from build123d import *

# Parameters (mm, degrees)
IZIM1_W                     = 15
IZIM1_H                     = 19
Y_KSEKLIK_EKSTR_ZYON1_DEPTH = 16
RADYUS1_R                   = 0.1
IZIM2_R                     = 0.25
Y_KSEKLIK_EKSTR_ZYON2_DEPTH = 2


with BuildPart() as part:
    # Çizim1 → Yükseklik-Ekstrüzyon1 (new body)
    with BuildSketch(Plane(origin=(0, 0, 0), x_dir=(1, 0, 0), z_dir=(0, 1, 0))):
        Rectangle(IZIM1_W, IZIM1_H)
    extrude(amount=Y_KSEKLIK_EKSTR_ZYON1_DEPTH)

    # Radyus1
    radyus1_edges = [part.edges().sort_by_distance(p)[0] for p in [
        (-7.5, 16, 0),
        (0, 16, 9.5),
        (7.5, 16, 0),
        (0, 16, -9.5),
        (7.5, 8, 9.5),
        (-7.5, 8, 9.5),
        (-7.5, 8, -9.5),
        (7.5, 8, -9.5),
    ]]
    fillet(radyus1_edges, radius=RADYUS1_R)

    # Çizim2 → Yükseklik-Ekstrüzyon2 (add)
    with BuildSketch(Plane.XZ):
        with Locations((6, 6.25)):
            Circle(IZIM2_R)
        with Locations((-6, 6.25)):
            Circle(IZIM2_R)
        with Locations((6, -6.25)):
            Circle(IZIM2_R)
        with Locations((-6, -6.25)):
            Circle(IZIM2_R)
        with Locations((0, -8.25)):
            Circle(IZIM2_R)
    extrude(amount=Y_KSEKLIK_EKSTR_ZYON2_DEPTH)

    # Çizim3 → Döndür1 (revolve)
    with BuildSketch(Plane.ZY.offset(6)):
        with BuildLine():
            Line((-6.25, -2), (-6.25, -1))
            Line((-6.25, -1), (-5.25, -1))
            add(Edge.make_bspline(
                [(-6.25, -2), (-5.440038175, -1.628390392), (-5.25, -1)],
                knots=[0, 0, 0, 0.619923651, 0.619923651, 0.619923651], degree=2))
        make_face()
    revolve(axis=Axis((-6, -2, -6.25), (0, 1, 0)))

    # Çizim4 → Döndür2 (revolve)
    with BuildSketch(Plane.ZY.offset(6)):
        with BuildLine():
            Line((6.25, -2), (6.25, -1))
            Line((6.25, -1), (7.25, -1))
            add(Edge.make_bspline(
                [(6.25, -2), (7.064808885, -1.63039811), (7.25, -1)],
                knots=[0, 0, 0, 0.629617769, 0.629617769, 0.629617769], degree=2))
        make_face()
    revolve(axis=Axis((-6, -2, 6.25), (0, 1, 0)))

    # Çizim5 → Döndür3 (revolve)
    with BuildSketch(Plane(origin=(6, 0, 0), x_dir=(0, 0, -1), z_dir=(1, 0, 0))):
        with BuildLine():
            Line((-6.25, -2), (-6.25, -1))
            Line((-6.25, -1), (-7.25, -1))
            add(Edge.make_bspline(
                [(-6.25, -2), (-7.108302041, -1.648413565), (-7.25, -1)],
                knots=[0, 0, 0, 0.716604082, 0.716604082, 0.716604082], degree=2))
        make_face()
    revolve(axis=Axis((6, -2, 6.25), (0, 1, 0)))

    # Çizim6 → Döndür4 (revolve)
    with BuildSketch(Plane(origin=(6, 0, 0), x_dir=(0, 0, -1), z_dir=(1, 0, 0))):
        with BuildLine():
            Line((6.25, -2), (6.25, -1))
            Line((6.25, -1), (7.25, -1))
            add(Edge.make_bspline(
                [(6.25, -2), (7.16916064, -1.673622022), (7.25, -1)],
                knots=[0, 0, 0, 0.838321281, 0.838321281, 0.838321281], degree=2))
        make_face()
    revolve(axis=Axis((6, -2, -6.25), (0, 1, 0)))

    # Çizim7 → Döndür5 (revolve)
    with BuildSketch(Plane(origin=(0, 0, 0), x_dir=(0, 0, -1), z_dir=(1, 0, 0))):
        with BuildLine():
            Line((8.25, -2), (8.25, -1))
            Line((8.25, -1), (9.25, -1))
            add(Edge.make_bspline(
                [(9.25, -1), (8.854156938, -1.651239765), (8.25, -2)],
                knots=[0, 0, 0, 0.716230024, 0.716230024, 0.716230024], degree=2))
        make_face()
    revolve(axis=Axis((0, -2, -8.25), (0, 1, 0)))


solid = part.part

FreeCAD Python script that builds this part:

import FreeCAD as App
import Part
import Sketcher
from FreeCAD import Vector
Q = App.Units.Quantity


def edges_at(feature, points):
    """Names of the edges that pass closest to the given points."""
    edges = feature.Shape.Edges
    near = lambda p: min(range(len(edges)), key=lambda i: edges[i].distToShape(Part.Vertex(*p))[0])
    return sorted({f"Edge{near(p) + 1}" for p in points})

doc = App.newDocument("Part")
params = doc.addObject("Spreadsheet::Sheet", "Params")
for row, (alias, value) in enumerate([
    ("sketch1_width", "15 mm"),
    ("sketch1_height", "19 mm"),
    ("pad1_length", "16 mm"),
    ("fillet_radius", "0.1 mm"),
    ("sketch2_diameter", "0.5 mm"),
    ("pad2_length", "2 mm"),
    ("revolution_angle", "360 deg"),
    ("revolution2_angle", "360 deg"),
    ("revolution3_angle", "360 deg"),
    ("revolution4_angle", "360 deg"),
    ("revolution5_angle", "360 deg"),
], start=1):
    params.set(f"A{row}", alias)
    params.set(f"B{row}", "=" + value)
    params.setAlias(f"B{row}", alias)

body = doc.addObject("PartDesign::Body", "Body")

# Sketch on XZ plane
sketch1 = body.newObject("Sketcher::SketchObject", "Sketch")
sketch1.AttachmentSupport = (doc.getObject("XZ_Plane"), [""])
sketch1.MapMode = "FlatFace"
sketch1.addGeometry(Part.LineSegment(Vector(-7.5, -9.5, 0), Vector(-7.5, 9.5, 0)), False)
sketch1.addGeometry(Part.LineSegment(Vector(-7.5, 9.5, 0), Vector(7.5, 9.5, 0)), False)
sketch1.addGeometry(Part.LineSegment(Vector(7.5, 9.5, 0), Vector(7.5, -9.5, 0)), False)
sketch1.addGeometry(Part.LineSegment(Vector(7.5, -9.5, 0), Vector(-7.5, -9.5, 0)), False)
sketch1.addConstraint(Sketcher.Constraint("Coincident", 0, 2, 1, 1))
sketch1.addConstraint(Sketcher.Constraint("Coincident", 1, 2, 2, 1))
sketch1.addConstraint(Sketcher.Constraint("Coincident", 2, 2, 3, 1))
sketch1.addConstraint(Sketcher.Constraint("Coincident", 3, 2, 0, 1))
sketch1.addConstraint(Sketcher.Constraint("Vertical", 0))
sketch1.addConstraint(Sketcher.Constraint("Horizontal", 1))
sketch1.addConstraint(Sketcher.Constraint("Vertical", 2))
sketch1.addConstraint(Sketcher.Constraint("Horizontal", 3))
sketch1.addConstraint(Sketcher.Constraint("Symmetric", 0, 2, 2, 2, -1, 1))
sketch1.addConstraint(Sketcher.Constraint("DistanceX", 1, 1, 1, 2, Q("15 mm")))
sketch1.addConstraint(Sketcher.Constraint("DistanceY", 0, 1, 0, 2, Q("19 mm")))
sketch1.setExpression("Constraints[9]", "Params.sketch1_width")
sketch1.setExpression("Constraints[10]", "Params.sketch1_height")
pad1 = body.newObject("PartDesign::Pad", "Pad")
pad1.Profile = sketch1
pad1.setExpression("Length", "Params.pad1_length")
pad1.Reversed = True
doc.recompute()

fillet = body.newObject("PartDesign::Fillet", "Fillet")
fillet.Base = (pad1, edges_at(pad1, [
    (-7.5, 16, 0),
    (0, 16, 9.5),
    (7.5, 16, 0),
    (0, 16, -9.5),
    (7.5, 8, 9.5),
    (-7.5, 8, 9.5),
    (-7.5, 8, -9.5),
    (7.5, 8, -9.5),
]))
fillet.setExpression("Radius", "Params.fillet_radius")

# Sketch on XZ plane
sketch2 = body.newObject("Sketcher::SketchObject", "Sketch001")
sketch2.AttachmentSupport = (doc.getObject("XZ_Plane"), [""])
sketch2.MapMode = "FlatFace"
sketch2.addGeometry(Part.Circle(Vector(6, 6.25, 0), Vector(0, 0, 1), 0.25), False)
sketch2.addGeometry(Part.Circle(Vector(-6, 6.25, 0), Vector(0, 0, 1), 0.25), False)
sketch2.addGeometry(Part.Circle(Vector(6, -6.25, 0), Vector(0, 0, 1), 0.25), False)
sketch2.addGeometry(Part.Circle(Vector(-6, -6.25, 0), Vector(0, 0, 1), 0.25), False)
sketch2.addGeometry(Part.Circle(Vector(0, -8.25, 0), Vector(0, 0, 1), 0.25), False)
sketch2.addConstraint(Sketcher.Constraint("Equal", 0, 1))
sketch2.addConstraint(Sketcher.Constraint("Equal", 1, 2))
sketch2.addConstraint(Sketcher.Constraint("Equal", 2, 3))
sketch2.addConstraint(Sketcher.Constraint("Equal", 3, 4))
sketch2.addConstraint(Sketcher.Constraint("Symmetric", 1, 3, 2, 3, -1, 1))
sketch2.addConstraint(Sketcher.Constraint("Symmetric", 0, 3, 3, 3, -1, 1))
sketch2.addConstraint(Sketcher.Constraint("Symmetric", 0, 3, 1, 3, -2))
sketch2.addConstraint(Sketcher.Constraint("PointOnObject", 4, 3, -2))
sketch2.addConstraint(Sketcher.Constraint("Diameter", 0, Q("0.5 mm")))
sketch2.addConstraint(Sketcher.Constraint("DistanceX", -1, 1, 0, 3, Q("6 mm")))
sketch2.addConstraint(Sketcher.Constraint("DistanceY", 4, 3, 2, 3, Q("2 mm")))
sketch2.addConstraint(Sketcher.Constraint("DistanceY", 2, 3, 0, 3, Q("12.5 mm")))
sketch2.setExpression("Constraints[8]", "Params.sketch2_diameter")
pad2 = body.newObject("PartDesign::Pad", "Pad001")
pad2.Profile = sketch2
pad2.setExpression("Length", "Params.pad2_length")

# Sketch on YZ plane
sketch3 = body.newObject("Sketcher::SketchObject", "Sketch002")
sketch3.AttachmentSupport = (doc.getObject("YZ_Plane"), [""])
sketch3.MapMode = "FlatFace"
sketch3.AttachmentOffset = App.Placement(Vector(0, 0, -6), App.Rotation())
sketch3.addGeometry(Part.LineSegment(Vector(-1, -6.25, 0), Vector(-2, -6.25, 0)), False)
sketch3.addGeometry(Part.BSplineCurve([Vector(-2, -6.25, 0), Vector(-1.62839, -5.440038, 0), Vector(-1, -5.25, 0)], [3, 3], [0, 0.619923651], False, 2, [1, 1, 1], False), False)
sketch3.addGeometry(Part.LineSegment(Vector(-1, -5.25, 0), Vector(-1, -6.25, 0)), False)
sketch3.addGeometry(Part.LineSegment(Vector(-2, -6.25, 0), Vector(-1, -6.25, 0)), True)  # axis
sketch3.addConstraint(Sketcher.Constraint("Block", 1))
sketch3.addConstraint(Sketcher.Constraint("Coincident", 0, 2, 1, 1))
sketch3.addConstraint(Sketcher.Constraint("Coincident", 1, 2, 2, 1))
sketch3.addConstraint(Sketcher.Constraint("Coincident", 2, 2, 0, 1))
sketch3.addConstraint(Sketcher.Constraint("Horizontal", 0))
sketch3.addConstraint(Sketcher.Constraint("Vertical", 2))
sketch3.addConstraint(Sketcher.Constraint("Horizontal", 3))
sketch3.addConstraint(Sketcher.Constraint("Coincident", 3, 1, 0, 2))
sketch3.addConstraint(Sketcher.Constraint("Equal", 0, 3))
revolution = body.newObject("PartDesign::Revolution", "Revolution")
revolution.Profile = sketch3
revolution.ReferenceAxis = (sketch3, ["Axis0"])
revolution.setExpression("Angle", "Params.revolution_angle")

# Sketch on YZ plane
sketch4 = body.newObject("Sketcher::SketchObject", "Sketch003")
sketch4.AttachmentSupport = (doc.getObject("YZ_Plane"), [""])
sketch4.MapMode = "FlatFace"
sketch4.AttachmentOffset = App.Placement(Vector(0, 0, -6), App.Rotation())
sketch4.addGeometry(Part.LineSegment(Vector(-1, 6.25, 0), Vector(-2, 6.25, 0)), False)
sketch4.addGeometry(Part.BSplineCurve([Vector(-2, 6.25, 0), Vector(-1.630398, 7.064809, 0), Vector(-1, 7.25, 0)], [3, 3], [0, 0.629617769], False, 2, [1, 1, 1], False), False)
sketch4.addGeometry(Part.LineSegment(Vector(-1, 7.25, 0), Vector(-1, 6.25, 0)), False)
sketch4.addGeometry(Part.LineSegment(Vector(-2, 6.25, 0), Vector(-1, 6.25, 0)), True)  # axis
sketch4.addConstraint(Sketcher.Constraint("Block", 1))
sketch4.addConstraint(Sketcher.Constraint("Coincident", 0, 2, 1, 1))
sketch4.addConstraint(Sketcher.Constraint("Coincident", 1, 2, 2, 1))
sketch4.addConstraint(Sketcher.Constraint("Coincident", 2, 2, 0, 1))
sketch4.addConstraint(Sketcher.Constraint("Horizontal", 0))
sketch4.addConstraint(Sketcher.Constraint("Vertical", 2))
sketch4.addConstraint(Sketcher.Constraint("Horizontal", 3))
sketch4.addConstraint(Sketcher.Constraint("Coincident", 3, 1, 0, 2))
sketch4.addConstraint(Sketcher.Constraint("Equal", 0, 3))
revolution2 = body.newObject("PartDesign::Revolution", "Revolution001")
revolution2.Profile = sketch4
revolution2.ReferenceAxis = (sketch4, ["Axis0"])
revolution2.setExpression("Angle", "Params.revolution2_angle")

# Sketch on YZ plane
sketch5 = body.newObject("Sketcher::SketchObject", "Sketch004")
sketch5.AttachmentSupport = (doc.getObject("YZ_Plane"), [""])
sketch5.MapMode = "FlatFace"
sketch5.AttachmentOffset = App.Placement(Vector(0, 0, 6), App.Rotation())
sketch5.addGeometry(Part.LineSegment(Vector(-2, 6.25, 0), Vector(-1, 6.25, 0)), False)
sketch5.addGeometry(Part.LineSegment(Vector(-1, 6.25, 0), Vector(-1, 7.25, 0)), False)
sketch5.addGeometry(Part.BSplineCurve([Vector(-2, 6.25, 0), Vector(-1.648414, 7.108302, 0), Vector(-1, 7.25, 0)], [3, 3], [0, 0.716604082], False, 2, [1, 1, 1], False), False)
sketch5.addGeometry(Part.LineSegment(Vector(-2, 6.25, 0), Vector(-1, 6.25, 0)), True)  # axis
sketch5.addConstraint(Sketcher.Constraint("Block", 2))
sketch5.addConstraint(Sketcher.Constraint("Coincident", 0, 2, 1, 1))
sketch5.addConstraint(Sketcher.Constraint("Coincident", 1, 2, 2, 2))
sketch5.addConstraint(Sketcher.Constraint("Coincident", 2, 1, 0, 1))
sketch5.addConstraint(Sketcher.Constraint("Horizontal", 0))
sketch5.addConstraint(Sketcher.Constraint("Vertical", 1))
sketch5.addConstraint(Sketcher.Constraint("Horizontal", 3))
sketch5.addConstraint(Sketcher.Constraint("Coincident", 3, 2, 0, 2))
sketch5.addConstraint(Sketcher.Constraint("Equal", 0, 3))
revolution3 = body.newObject("PartDesign::Revolution", "Revolution002")
revolution3.Profile = sketch5
revolution3.ReferenceAxis = (sketch5, ["Axis0"])
revolution3.setExpression("Angle", "Params.revolution3_angle")

# Sketch on YZ plane
sketch6 = body.newObject("Sketcher::SketchObject", "Sketch005")
sketch6.AttachmentSupport = (doc.getObject("YZ_Plane"), [""])
sketch6.MapMode = "FlatFace"
sketch6.AttachmentOffset = App.Placement(Vector(0, 0, 6), App.Rotation())
sketch6.addGeometry(Part.LineSegment(Vector(-1, -6.25, 0), Vector(-2, -6.25, 0)), False)
sketch6.addGeometry(Part.BSplineCurve([Vector(-2, -6.25, 0), Vector(-1.673622, -7.169161, 0), Vector(-1, -7.25, 0)], [3, 3], [0, 0.838321281], False, 2, [1, 1, 1], False), False)
sketch6.addGeometry(Part.LineSegment(Vector(-1, -7.25, 0), Vector(-1, -6.25, 0)), False)
sketch6.addGeometry(Part.LineSegment(Vector(-2, -6.25, 0), Vector(-1, -6.25, 0)), True)  # axis
sketch6.addConstraint(Sketcher.Constraint("Block", 1))
sketch6.addConstraint(Sketcher.Constraint("Coincident", 0, 2, 1, 1))
sketch6.addConstraint(Sketcher.Constraint("Coincident", 1, 2, 2, 1))
sketch6.addConstraint(Sketcher.Constraint("Coincident", 2, 2, 0, 1))
sketch6.addConstraint(Sketcher.Constraint("Horizontal", 0))
sketch6.addConstraint(Sketcher.Constraint("Vertical", 2))
sketch6.addConstraint(Sketcher.Constraint("Horizontal", 3))
sketch6.addConstraint(Sketcher.Constraint("Coincident", 3, 1, 0, 2))
sketch6.addConstraint(Sketcher.Constraint("Equal", 0, 3))
revolution4 = body.newObject("PartDesign::Revolution", "Revolution003")
revolution4.Profile = sketch6
revolution4.ReferenceAxis = (sketch6, ["Axis0"])
revolution4.setExpression("Angle", "Params.revolution4_angle")

# Sketch on YZ plane
sketch7 = body.newObject("Sketcher::SketchObject", "Sketch006")
sketch7.AttachmentSupport = (doc.getObject("YZ_Plane"), [""])
sketch7.MapMode = "FlatFace"
sketch7.addGeometry(Part.LineSegment(Vector(-1, -8.25, 0), Vector(-2, -8.25, 0)), False)
sketch7.addGeometry(Part.BSplineCurve([Vector(-1, -9.25, 0), Vector(-1.65124, -8.854157, 0), Vector(-2, -8.25, 0)], [3, 3], [0, 0.716230024], False, 2, [1, 1, 1], False), False)
sketch7.addGeometry(Part.LineSegment(Vector(-1, -9.25, 0), Vector(-1, -8.25, 0)), False)
sketch7.addGeometry(Part.LineSegment(Vector(-2, -8.25, 0), Vector(-1, -8.25, 0)), True)  # axis
sketch7.addConstraint(Sketcher.Constraint("Block", 1))
sketch7.addConstraint(Sketcher.Constraint("Coincident", 0, 2, 1, 2))
sketch7.addConstraint(Sketcher.Constraint("Coincident", 1, 1, 2, 1))
sketch7.addConstraint(Sketcher.Constraint("Coincident", 2, 2, 0, 1))
sketch7.addConstraint(Sketcher.Constraint("Horizontal", 0))
sketch7.addConstraint(Sketcher.Constraint("Vertical", 2))
sketch7.addConstraint(Sketcher.Constraint("Horizontal", 3))
sketch7.addConstraint(Sketcher.Constraint("Coincident", 3, 1, 0, 2))
sketch7.addConstraint(Sketcher.Constraint("Equal", 0, 3))
revolution5 = body.newObject("PartDesign::Revolution", "Revolution004")
revolution5.Profile = sketch7
revolution5.ReferenceAxis = (sketch7, ["Axis0"])
revolution5.setExpression("Angle", "Params.revolution5_angle")

doc.recompute()
